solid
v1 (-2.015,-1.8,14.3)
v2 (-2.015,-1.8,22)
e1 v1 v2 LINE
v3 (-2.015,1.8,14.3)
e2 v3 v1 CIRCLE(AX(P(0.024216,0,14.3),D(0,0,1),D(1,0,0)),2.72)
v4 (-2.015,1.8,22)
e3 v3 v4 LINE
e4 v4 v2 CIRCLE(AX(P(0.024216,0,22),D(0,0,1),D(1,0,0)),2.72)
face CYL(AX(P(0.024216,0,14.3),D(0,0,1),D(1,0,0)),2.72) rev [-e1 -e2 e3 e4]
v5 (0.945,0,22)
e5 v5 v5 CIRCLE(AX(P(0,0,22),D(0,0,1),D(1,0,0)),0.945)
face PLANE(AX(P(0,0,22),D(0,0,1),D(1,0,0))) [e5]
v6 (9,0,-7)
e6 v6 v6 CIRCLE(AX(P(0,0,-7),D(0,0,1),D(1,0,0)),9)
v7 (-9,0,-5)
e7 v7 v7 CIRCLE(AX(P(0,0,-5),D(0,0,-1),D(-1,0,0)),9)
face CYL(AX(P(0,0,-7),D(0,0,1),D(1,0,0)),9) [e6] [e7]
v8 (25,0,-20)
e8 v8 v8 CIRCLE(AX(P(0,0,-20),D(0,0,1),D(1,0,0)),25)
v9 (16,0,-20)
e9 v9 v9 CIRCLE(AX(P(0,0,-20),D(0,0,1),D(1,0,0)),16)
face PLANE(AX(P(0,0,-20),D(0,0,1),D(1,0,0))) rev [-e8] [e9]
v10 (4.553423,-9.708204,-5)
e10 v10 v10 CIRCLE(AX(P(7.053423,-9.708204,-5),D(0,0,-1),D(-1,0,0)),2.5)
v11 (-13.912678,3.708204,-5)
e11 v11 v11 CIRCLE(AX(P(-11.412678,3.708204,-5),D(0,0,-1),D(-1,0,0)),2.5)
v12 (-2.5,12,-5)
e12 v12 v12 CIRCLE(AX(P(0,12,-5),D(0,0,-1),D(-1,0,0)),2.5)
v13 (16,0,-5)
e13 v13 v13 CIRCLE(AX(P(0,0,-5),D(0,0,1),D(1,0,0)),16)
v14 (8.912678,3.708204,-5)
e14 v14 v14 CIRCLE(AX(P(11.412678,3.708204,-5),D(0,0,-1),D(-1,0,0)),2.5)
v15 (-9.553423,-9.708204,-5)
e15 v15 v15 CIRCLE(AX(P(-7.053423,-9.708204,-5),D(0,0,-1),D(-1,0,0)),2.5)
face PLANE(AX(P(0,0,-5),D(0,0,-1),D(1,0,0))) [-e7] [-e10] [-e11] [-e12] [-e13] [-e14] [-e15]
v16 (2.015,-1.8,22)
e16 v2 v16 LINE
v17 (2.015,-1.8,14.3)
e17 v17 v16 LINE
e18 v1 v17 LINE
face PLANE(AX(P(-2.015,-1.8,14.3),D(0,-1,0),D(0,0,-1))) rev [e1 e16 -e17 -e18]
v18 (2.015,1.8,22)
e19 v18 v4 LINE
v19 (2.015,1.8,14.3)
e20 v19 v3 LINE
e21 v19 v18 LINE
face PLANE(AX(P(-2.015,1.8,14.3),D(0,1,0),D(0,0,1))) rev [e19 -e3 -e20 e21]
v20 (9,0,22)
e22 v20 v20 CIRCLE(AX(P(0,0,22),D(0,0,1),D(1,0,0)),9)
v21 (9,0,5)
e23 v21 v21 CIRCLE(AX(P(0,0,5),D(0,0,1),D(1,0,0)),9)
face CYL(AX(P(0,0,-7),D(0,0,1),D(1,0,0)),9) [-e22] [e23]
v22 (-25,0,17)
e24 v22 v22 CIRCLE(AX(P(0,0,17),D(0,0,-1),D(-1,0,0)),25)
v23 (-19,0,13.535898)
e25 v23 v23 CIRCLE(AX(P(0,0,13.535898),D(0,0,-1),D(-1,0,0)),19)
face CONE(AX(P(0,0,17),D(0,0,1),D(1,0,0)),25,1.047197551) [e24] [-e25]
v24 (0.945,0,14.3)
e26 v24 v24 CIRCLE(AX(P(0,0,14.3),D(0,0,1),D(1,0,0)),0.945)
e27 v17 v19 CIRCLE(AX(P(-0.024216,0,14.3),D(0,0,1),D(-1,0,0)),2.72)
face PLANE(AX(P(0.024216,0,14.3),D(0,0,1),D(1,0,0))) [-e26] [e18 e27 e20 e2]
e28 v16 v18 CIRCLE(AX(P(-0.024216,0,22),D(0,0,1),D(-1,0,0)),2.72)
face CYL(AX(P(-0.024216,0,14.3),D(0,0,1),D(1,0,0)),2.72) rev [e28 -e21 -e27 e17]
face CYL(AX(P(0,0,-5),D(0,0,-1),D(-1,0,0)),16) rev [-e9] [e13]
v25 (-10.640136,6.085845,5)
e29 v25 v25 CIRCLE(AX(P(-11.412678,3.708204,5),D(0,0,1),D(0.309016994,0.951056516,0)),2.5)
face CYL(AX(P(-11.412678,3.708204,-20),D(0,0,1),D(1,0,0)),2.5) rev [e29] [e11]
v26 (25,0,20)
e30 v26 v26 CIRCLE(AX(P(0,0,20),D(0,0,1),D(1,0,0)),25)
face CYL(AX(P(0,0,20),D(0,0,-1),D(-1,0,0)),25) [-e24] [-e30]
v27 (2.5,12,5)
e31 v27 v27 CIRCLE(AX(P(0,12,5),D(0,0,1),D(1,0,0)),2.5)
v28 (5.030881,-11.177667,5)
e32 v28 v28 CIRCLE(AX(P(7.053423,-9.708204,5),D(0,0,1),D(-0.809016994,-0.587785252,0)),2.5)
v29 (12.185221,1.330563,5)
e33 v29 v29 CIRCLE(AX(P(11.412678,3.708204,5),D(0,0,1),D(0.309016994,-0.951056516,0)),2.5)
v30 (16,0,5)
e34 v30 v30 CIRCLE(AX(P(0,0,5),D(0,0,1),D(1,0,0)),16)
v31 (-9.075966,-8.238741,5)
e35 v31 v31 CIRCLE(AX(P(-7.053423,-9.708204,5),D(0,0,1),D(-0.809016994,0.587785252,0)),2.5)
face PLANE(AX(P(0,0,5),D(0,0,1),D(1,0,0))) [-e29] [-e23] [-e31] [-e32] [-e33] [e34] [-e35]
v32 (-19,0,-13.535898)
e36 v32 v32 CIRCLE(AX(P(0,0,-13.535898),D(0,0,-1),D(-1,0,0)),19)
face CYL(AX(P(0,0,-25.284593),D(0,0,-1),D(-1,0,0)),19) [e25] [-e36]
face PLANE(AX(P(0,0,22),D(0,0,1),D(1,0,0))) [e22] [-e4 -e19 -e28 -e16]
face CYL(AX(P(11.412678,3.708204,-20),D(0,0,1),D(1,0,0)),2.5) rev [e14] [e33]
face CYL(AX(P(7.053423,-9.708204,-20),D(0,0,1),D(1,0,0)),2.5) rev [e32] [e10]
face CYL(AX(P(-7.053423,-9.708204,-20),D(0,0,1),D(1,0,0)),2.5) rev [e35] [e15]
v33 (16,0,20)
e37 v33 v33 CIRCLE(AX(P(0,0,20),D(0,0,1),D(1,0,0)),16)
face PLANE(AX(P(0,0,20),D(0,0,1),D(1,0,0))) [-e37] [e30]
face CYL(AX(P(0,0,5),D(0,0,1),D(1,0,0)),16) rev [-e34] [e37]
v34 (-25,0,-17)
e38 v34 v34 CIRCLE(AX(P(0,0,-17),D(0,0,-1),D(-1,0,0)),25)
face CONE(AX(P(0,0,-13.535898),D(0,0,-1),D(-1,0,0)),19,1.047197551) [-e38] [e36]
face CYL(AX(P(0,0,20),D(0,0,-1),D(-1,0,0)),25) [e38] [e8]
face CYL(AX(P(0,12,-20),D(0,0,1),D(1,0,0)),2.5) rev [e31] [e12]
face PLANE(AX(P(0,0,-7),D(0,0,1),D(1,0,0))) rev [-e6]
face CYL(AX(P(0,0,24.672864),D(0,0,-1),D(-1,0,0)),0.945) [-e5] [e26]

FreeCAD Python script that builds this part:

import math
import FreeCAD as App
import Part
import Sketcher
from FreeCAD import Vector
Q = App.Units.Quantity


def add_polygon(sketch, points):
    """Adds a closed chain of lines whose ends are joined by coincident constraints."""
    first, n = sketch.GeometryCount, len(points)
    for a, b in zip(points, points[1:] + points[:1]):
        sketch.addGeometry(Part.LineSegment(App.Vector(*a, 0), App.Vector(*b, 0)), False)
    for i in range(n):
        sketch.addConstraint(Sketcher.Constraint("Coincident", first + i, 2, first + (i + 1) % n, 1))

doc = App.newDocument("Part")
body = doc.addObject("PartDesign::Body", "Body")

sketch1 = body.newObject("Sketcher::SketchObject", "Sketch")
sketch1.AttachmentSupport = (doc.getObject("XY_Plane"), [""])
sketch1.MapMode = "FlatFace"
sketch1.addGeometry([
    Part.Circle(Vector(0, 0, 0), Vector(0, 0, 1), 25),
    Part.Circle(Vector(0, 0, 0), Vector(0, 0, 1), 8),
], False)
sketch1.addConstraint([
    Sketcher.Constraint("Coincident", 0, 3, -1, 1),
    Sketcher.Constraint("Coincident", 1, 3, -1, 1),
    Sketcher.Constraint("Diameter", 0, 50.0),
    Sketcher.Constraint("Diameter", 1, 16.0),
])
pad1 = body.newObject("PartDesign::Pad", "Pad")
pad1.Profile = sketch1
pad1.Length = 40
pad1.Midplane = True

sketch2 = body.newObject("Sketcher::SketchObject", "Sketch001")
sketch2.AttachmentSupport = (doc.getObject("XY_Plane"), [""])
sketch2.MapMode = "FlatFace"
sketch2.AttachmentOffset = App.Placement(Vector(0, 0, 20), App.Rotation())
sketch2.addGeometry(Part.Circle(Vector(0, 0, 0), Vector(0, 0, 1), 16), False)
sketch2.addConstraint([
    Sketcher.Constraint("Coincident", 0, 3, -1, 1),
    Sketcher.Constraint("Diameter", 0, 32.0),
])
pocket1 = body.newObject("PartDesign::Pocket", "Pocket")
pocket1.Profile = sketch2
pocket1.Length = 15
doc.recompute()

mirrored = body.newObject("PartDesign::Mirrored", "Mirrored")
mirrored.Originals = [pocket1]
mirrored.MirrorPlane = (doc.getObject("XY_Plane"), [""])
body.Tip = mirrored

sketch3 = body.newObject("Sketcher::SketchObject", "Sketch002")
sketch3.AttachmentSupport = (doc.getObject("XY_Plane"), [""])
sketch3.MapMode = "FlatFace"
sketch3.AttachmentOffset = App.Placement(Vector(0, 0, 5), App.Rotation())
sketch3.addGeometry(Part.Circle(Vector(0, 12, 0), Vector(0, 0, 1), 2.5), False)
sketch3.addConstraint([
    Sketcher.Constraint("PointOnObject", 0, 3, -2),
    Sketcher.Constraint("Diameter", 0, 5.0),
    Sketcher.Constraint("DistanceY", -1, 1, 0, 3, 12.0),
])
pocket2 = body.newObject("PartDesign::Pocket", "Pocket001")
pocket2.Profile = sketch3
pocket2.Type = "ThroughAll"
doc.recompute()

polarpattern = body.newObject("PartDesign::PolarPattern", "PolarPattern")
polarpattern.Originals = [pocket2]
polarpattern.Axis = (doc.getObject("Z_Axis"), [""])
polarpattern.Angle = 360
polarpattern.Occurrences = 5
body.Tip = polarpattern

sketch4 = body.newObject("Sketcher::SketchObject", "Sketch003")
sketch4.AttachmentSupport = (doc.getObject("XY_Plane"), [""])
sketch4.MapMode = "FlatFace"
sketch4.AttachmentOffset = App.Placement(Vector(0, 0, 5), App.Rotation())
sketch4.addGeometry([
    Part.Circle(Vector(0, 0, 0), Vector(0, 0, 1), 9),
    Part.Circle(Vector(0, 0, 0), Vector(0, 0, 1), 8),
], False)
sketch4.addConstraint([
    Sketcher.Constraint("Coincident", 0, 3, -1, 1),
    Sketcher.Constraint("Coincident", 1, 3, -1, 1),
    Sketcher.Constraint("Diameter", 0, 18.0),
    Sketcher.Constraint("Diameter", 1, 16.0),
])
pad2 = body.newObject("PartDesign::Pad", "Pad001")
pad2.Profile = sketch4
pad2.Type = "TwoLengths"
pad2.Length = 17
pad2.Length2 = 12

sketch5 = body.newObject("Sketcher::SketchObject", "Sketch004")
sketch5.AttachmentSupport = (doc.getObject("XZ_Plane"), [""])
sketch5.MapMode = "FlatFace"
add_polygon(sketch5, [(-19, -13.535898), (-25, -17), (-25, 17), (-19, 13.535898)])
sketch5.addConstraint([
    Sketcher.Constraint("Vertical", 1),
    Sketcher.Constraint("Vertical", 3),
    Sketcher.Constraint("Equal", 0, 2),
    Sketcher.Constraint("DistanceY", 1, 1, 1, 2, 34.0),
    Sketcher.Constraint("Angle", 0, Q("-150 deg")),
    Sketcher.Constraint("DistanceX", 0, 2, -1, 1, 25.0),
    Sketcher.Constraint("DistanceY", 0, 2, -1, 1, 17.0),
    Sketcher.Constraint("DistanceX", 2, 2, -1, 1, 19.0),
])
groove = body.newObject("PartDesign::Groove", "Groove")
groove.Profile = sketch5
groove.ReferenceAxis = (sketch5, ["V_Axis"])
groove.Angle = 360

sketch6 = body.newObject("Sketcher::SketchObject", "Sketch005")
sketch6.AttachmentSupport = (doc.getObject("XY_Plane"), [""])
sketch6.MapMode = "FlatFace"
sketch6.AttachmentOffset = App.Placement(Vector(0, 0, -7), App.Rotation())
sketch6.addGeometry(Part.Circle(Vector(0, 0, 0), Vector(0, 0, 1), 8), False)
sketch6.addConstraint([
    Sketcher.Constraint("Coincident", 0, 3, -1, 1),
    Sketcher.Constraint("Diameter", 0, 16.0),
])
pad3 = body.newObject("PartDesign::Pad", "Pad002")
pad3.Profile = sketch6
pad3.Length = 29

sketch7 = body.newObject("Sketcher::SketchObject", "Sketch006")
sketch7.AttachmentSupport = (doc.getObject("XY_Plane"), [""])
sketch7.MapMode = "FlatFace"
sketch7.AttachmentOffset = App.Placement(Vector(0, 0, 22), App.Rotation())
sketch7.addGeometry([
    Part.LineSegment(Vector(2.015, 1.8, 0), Vector(-2.015, 1.8, 0)),
    Part.ArcOfCircle(Part.Circle(Vector(0.024216, 0, 0), Vector(0, 0, 1), 2.72), math.radians(138.565401), math.radians(221.434599)),
    Part.LineSegment(Vector(-2.015, -1.8, 0), Vector(2.015, -1.8, 0)),
    Part.ArcOfCircle(Part.Circle(Vector(-0.024216, 0, 0), Vector(0, 0, 1), 2.72), math.radians(-41.434599), math.radians(41.434599)),
], False)
sketch7.addConstraint([
    Sketcher.Constraint("Coincident", 0, 2, 1, 1),
    Sketcher.Constraint("Coincident", 1, 2, 2, 1),
    Sketcher.Constraint("Coincident", 2, 2, 3, 1),
    Sketcher.Constraint("Coincident", 3, 2, 0, 1),
    Sketcher.Constraint("Horizontal", 0),
    Sketcher.Constraint("Horizontal", 2),
    Sketcher.Constraint("Equal", 1, 3),
    Sketcher.Constraint("Symmetric", 1, 3, 3, 3, -1, 1),
    Sketcher.Constraint("Symmetric", 0, 2, 1, 2, -1),
    Sketcher.Constraint("Radius", 1, 2.72),
    Sketcher.Constraint("DistanceX", 0, 2, 0, 1, 4.03),
    Sketcher.Constraint("DistanceY", -1, 1, 0, 2, 1.8),
])
pocket3 = body.newObject("PartDesign::Pocket", "Pocket002")
pocket3.Profile = sketch7
pocket3.Length = 7.7

sketch8 = body.newObject("Sketcher::SketchObject", "Sketch007")
sketch8.AttachmentSupport = (doc.getObject("XY_Plane"), [""])
sketch8.MapMode = "FlatFace"
sketch8.AttachmentOffset = App.Placement(Vector(0, 0, 14.3), App.Rotation())
sketch8.addGeometry(Part.Circle(Vector(0, 0, 0), Vector(0, 0, 1), 0.945), False)
sketch8.addConstraint([
    Sketcher.Constraint("Coincident", 0, 3, -1, 1),
    Sketcher.Constraint("Diameter", 0, 1.89),
])
pad4 = body.newObject("PartDesign::Pad", "Pad003")
pad4.Profile = sketch8
pad4.Length = 7.7

doc.recompute()
